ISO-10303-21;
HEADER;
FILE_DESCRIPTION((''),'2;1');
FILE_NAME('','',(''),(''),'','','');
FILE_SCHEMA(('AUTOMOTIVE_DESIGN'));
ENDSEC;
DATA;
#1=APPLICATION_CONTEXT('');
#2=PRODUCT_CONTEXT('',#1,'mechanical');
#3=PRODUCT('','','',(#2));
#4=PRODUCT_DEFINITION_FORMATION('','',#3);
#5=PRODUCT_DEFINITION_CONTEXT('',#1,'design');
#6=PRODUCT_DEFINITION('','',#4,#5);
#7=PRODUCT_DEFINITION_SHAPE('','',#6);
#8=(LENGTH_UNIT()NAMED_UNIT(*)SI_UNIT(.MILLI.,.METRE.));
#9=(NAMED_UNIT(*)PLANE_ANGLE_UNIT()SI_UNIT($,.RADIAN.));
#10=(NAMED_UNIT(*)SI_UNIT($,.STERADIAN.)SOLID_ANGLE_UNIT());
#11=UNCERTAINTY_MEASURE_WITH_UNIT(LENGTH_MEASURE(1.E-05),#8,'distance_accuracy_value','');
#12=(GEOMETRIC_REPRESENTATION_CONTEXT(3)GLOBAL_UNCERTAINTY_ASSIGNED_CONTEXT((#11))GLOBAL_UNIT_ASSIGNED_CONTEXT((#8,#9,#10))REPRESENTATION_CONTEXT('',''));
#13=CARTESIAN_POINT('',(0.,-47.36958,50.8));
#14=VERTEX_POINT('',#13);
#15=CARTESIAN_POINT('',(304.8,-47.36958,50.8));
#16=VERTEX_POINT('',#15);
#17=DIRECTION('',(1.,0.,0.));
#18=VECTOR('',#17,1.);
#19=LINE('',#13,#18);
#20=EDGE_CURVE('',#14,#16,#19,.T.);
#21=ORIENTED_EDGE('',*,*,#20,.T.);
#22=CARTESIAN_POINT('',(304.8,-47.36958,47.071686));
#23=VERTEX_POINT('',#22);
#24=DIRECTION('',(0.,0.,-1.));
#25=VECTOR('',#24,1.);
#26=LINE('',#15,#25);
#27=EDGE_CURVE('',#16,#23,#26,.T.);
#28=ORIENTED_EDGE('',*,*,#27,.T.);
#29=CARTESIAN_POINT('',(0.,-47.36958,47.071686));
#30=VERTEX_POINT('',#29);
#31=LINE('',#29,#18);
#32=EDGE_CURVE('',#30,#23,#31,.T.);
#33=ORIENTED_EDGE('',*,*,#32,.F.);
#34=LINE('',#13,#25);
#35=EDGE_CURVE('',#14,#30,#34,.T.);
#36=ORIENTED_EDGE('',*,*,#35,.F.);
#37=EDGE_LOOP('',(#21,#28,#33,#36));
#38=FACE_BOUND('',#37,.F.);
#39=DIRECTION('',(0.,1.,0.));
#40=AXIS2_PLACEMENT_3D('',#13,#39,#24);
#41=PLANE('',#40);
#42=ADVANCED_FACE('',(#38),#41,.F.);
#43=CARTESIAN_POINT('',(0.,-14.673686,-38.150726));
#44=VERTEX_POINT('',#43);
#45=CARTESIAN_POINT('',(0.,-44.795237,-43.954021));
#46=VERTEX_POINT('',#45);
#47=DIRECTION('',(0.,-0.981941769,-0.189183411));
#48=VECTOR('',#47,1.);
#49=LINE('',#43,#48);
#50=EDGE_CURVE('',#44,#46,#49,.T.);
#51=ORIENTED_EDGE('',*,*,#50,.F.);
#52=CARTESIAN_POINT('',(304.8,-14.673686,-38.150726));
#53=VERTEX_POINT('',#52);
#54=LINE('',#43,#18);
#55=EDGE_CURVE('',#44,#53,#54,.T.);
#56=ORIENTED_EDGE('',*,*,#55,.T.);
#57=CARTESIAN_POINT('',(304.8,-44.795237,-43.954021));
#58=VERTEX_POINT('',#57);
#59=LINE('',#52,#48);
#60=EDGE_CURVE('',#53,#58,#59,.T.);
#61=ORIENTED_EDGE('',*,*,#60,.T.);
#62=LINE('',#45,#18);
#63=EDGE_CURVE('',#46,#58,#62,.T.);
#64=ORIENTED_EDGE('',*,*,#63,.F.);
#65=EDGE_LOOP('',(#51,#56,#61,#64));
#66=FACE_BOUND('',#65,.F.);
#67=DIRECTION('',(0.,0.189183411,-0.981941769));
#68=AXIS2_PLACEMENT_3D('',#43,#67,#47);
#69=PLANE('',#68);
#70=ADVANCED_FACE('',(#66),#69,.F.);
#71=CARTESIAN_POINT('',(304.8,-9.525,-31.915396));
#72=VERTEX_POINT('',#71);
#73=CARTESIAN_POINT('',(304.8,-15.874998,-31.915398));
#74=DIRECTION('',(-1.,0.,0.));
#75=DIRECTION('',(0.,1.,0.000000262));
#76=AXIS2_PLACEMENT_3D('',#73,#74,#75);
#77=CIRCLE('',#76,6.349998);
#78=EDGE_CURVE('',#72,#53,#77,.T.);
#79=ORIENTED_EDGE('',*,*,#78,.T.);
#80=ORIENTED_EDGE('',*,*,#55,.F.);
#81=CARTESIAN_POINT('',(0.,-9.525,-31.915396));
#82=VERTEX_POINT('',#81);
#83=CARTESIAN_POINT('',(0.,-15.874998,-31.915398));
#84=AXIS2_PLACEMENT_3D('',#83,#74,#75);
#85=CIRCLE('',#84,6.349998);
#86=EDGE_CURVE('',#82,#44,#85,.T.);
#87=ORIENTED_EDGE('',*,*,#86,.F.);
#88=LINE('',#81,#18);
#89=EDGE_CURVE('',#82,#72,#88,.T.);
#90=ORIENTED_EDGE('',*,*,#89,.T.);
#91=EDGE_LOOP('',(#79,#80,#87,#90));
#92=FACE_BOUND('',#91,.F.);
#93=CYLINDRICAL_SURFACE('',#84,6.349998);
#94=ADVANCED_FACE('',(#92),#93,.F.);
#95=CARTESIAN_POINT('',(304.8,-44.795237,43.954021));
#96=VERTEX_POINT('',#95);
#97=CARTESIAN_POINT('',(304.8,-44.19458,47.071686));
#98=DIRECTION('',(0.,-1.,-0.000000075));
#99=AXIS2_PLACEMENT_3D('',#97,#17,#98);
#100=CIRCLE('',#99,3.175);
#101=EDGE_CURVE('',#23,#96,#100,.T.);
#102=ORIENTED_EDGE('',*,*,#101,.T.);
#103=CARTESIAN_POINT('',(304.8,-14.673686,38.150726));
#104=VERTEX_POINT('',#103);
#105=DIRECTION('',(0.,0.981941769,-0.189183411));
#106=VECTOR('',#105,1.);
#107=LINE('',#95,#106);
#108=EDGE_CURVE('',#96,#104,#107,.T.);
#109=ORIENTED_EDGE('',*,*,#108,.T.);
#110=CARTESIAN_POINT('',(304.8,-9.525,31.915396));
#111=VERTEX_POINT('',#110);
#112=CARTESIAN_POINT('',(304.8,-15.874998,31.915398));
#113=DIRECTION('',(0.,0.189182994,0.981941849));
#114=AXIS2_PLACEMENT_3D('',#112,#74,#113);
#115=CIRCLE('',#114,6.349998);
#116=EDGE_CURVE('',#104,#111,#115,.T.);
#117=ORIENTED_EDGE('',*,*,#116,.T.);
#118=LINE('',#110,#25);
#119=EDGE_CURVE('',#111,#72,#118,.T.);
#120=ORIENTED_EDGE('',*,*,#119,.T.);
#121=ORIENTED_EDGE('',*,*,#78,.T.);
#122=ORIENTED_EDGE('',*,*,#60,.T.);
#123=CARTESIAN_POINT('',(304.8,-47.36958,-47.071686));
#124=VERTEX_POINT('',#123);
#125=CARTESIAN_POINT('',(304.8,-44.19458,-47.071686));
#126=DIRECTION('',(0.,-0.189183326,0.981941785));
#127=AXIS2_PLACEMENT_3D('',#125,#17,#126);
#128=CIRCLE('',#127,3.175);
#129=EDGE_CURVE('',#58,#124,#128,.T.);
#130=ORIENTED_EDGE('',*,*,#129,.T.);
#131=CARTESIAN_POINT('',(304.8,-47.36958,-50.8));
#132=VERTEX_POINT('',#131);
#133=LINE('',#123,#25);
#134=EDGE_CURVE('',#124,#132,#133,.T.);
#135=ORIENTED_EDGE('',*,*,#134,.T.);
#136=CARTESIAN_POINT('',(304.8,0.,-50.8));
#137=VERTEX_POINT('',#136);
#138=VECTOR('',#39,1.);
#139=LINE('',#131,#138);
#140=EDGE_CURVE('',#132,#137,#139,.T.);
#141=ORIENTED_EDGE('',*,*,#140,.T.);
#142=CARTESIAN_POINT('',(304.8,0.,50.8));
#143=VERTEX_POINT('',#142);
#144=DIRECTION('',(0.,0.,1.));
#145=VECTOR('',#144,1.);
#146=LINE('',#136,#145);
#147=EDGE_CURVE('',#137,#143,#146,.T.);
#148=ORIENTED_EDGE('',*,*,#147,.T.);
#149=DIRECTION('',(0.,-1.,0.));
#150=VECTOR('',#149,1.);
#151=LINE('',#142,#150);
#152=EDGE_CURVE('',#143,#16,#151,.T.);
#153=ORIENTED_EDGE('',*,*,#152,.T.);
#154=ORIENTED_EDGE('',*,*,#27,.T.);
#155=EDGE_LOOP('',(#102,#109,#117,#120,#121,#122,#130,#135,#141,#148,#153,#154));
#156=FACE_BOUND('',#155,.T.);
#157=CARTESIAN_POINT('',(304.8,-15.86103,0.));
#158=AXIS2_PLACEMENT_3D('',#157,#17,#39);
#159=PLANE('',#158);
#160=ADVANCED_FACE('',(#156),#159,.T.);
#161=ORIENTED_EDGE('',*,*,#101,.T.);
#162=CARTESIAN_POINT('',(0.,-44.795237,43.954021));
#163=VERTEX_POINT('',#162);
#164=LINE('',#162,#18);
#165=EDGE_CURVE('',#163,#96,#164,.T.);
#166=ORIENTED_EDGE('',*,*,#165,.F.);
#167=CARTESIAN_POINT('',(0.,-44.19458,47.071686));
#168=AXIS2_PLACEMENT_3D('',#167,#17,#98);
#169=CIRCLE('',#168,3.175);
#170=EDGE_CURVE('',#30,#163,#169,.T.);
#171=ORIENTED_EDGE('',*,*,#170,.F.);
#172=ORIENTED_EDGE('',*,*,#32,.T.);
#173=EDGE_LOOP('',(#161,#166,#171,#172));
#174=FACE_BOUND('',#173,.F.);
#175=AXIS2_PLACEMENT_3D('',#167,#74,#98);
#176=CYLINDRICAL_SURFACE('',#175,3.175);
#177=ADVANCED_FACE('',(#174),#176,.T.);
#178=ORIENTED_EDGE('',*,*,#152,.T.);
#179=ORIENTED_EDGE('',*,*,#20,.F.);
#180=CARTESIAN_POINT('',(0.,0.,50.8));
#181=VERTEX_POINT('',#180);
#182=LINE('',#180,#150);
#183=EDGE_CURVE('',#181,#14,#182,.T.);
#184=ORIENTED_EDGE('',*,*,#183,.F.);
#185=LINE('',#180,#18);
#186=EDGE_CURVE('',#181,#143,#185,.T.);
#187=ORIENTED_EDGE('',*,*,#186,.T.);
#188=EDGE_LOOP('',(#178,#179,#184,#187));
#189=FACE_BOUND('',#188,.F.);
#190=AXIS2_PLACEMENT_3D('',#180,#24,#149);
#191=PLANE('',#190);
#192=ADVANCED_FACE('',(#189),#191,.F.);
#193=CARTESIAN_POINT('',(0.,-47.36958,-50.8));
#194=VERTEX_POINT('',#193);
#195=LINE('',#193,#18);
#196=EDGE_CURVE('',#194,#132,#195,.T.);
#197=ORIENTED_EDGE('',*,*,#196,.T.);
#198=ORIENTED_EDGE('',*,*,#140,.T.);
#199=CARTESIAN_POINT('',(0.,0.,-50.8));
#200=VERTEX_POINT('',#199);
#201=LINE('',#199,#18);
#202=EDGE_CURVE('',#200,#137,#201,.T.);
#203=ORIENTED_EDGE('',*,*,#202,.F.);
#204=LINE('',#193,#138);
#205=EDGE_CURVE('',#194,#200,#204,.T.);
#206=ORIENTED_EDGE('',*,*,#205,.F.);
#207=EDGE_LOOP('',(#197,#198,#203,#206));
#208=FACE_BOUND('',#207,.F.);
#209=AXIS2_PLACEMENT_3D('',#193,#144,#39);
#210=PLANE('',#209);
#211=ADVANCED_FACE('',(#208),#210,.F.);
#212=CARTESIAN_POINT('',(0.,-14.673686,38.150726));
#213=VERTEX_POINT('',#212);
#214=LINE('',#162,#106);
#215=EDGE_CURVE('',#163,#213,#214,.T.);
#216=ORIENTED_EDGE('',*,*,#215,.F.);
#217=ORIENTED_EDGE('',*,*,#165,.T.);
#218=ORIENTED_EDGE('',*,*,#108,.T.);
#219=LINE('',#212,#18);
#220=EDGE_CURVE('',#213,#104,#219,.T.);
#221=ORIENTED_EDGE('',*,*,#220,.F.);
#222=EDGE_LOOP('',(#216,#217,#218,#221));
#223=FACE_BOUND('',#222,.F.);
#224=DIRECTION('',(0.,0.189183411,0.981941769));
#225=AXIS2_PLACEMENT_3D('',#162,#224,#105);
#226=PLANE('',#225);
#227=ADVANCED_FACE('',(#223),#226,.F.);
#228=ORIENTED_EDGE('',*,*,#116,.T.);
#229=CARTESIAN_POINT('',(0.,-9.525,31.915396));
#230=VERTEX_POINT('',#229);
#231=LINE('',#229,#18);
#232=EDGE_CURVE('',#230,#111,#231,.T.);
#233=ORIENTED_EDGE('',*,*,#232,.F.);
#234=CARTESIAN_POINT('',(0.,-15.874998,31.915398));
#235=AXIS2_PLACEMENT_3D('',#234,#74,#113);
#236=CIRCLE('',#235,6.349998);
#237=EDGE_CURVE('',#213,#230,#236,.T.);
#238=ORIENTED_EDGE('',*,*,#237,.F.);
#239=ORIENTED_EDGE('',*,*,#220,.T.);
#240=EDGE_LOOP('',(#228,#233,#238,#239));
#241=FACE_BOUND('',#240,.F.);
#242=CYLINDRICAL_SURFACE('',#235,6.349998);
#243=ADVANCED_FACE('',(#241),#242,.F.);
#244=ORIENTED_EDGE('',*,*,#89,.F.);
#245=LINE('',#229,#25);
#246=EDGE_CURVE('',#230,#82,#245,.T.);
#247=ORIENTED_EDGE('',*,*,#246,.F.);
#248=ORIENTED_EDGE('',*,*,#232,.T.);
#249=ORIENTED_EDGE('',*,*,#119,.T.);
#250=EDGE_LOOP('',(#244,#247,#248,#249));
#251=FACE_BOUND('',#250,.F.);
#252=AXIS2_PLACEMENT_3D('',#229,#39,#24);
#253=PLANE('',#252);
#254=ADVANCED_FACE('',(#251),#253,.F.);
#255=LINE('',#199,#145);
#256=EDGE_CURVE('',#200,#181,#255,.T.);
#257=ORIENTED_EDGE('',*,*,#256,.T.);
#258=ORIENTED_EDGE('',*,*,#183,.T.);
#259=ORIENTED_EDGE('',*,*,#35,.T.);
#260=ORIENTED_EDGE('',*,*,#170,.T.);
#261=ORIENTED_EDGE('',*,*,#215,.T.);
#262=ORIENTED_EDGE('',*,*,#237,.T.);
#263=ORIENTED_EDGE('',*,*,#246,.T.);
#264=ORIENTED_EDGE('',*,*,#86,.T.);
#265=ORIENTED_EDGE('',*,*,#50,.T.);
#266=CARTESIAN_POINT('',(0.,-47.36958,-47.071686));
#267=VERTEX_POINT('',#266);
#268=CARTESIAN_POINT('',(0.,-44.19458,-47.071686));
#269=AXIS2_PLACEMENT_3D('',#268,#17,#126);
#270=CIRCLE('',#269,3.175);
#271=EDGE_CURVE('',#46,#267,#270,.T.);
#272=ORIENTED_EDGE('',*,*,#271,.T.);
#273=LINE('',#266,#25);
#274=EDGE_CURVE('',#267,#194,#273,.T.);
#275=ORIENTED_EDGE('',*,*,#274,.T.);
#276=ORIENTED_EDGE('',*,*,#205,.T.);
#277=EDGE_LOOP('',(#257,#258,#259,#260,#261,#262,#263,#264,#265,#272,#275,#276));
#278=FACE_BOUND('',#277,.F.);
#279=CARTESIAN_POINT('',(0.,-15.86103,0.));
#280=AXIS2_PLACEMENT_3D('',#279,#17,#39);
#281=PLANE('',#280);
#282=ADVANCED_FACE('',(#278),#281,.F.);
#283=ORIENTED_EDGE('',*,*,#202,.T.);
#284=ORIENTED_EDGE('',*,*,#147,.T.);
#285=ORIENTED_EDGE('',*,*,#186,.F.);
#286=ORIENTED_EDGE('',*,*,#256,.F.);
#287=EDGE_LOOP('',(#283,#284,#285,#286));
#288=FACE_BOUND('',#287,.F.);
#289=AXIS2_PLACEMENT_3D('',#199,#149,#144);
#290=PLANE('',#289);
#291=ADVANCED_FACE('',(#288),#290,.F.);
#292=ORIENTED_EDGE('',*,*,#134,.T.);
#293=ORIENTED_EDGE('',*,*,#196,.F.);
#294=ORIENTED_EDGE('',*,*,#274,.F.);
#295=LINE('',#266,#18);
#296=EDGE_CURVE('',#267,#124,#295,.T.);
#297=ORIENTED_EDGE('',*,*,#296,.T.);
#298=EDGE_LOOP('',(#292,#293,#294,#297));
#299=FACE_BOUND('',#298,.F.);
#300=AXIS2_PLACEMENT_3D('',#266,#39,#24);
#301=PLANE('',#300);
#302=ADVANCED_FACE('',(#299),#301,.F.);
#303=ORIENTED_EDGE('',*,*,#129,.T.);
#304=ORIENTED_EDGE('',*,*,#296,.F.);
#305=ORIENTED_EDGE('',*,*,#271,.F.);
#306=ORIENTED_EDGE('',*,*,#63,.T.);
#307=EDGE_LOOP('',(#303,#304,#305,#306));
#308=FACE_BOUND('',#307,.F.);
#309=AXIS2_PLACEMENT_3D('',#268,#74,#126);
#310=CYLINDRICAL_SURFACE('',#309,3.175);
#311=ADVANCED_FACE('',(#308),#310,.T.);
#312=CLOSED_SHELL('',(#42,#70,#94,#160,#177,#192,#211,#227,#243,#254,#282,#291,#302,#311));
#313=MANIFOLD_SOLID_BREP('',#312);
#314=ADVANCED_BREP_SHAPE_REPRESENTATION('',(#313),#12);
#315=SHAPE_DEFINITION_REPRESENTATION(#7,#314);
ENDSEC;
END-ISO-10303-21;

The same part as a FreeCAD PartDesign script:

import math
import FreeCAD as App
import Part
import Sketcher
Q = App.Units.Quantity

doc = App.newDocument("Part")
params = doc.addObject("Spreadsheet::Sheet", "Params")
for row, (alias, value) in enumerate([
    ("sketch1_height", "4 in"),
    ("sketch1_radius", "0.2499999 in"),
    ("sketch1_radius2", "0.125 in"),
    ("pad1_length", "12 in"),
], start=1):
    params.set(f"A{row}", alias)
    params.set(f"B{row}", "=" + value)
    params.setAlias(f"B{row}", alias)

body = doc.addObject("PartDesign::Body", "Body")

# Sketch on YZ plane
sketch1 = body.newObject("Sketcher::SketchObject", "Sketch")
sketch1.AttachmentSupport = (doc.getObject("YZ_Plane"), [""])
sketch1.MapMode = "FlatFace"
sketch1.addGeometry(Part.LineSegment(App.Vector(0, 50.8, 0), App.Vector(-47.36958, 50.8, 0)), False)
sketch1.addGeometry(Part.LineSegment(App.Vector(-47.36958, 50.8, 0), App.Vector(-47.36958, 47.071686, 0)), False)
sketch1.addGeometry(Part.ArcOfCircle(Part.Circle(App.Vector(-44.19458, 47.071686, 0), App.Vector(0, 0, 1), 3.175), math.radians(-179.999996), math.radians(-100.905128)), False)
sketch1.addGeometry(Part.LineSegment(App.Vector(-44.795237, 43.954021, 0), App.Vector(-14.673686, 38.150726, 0)), False)
sketch1.addGeometry(Part.ArcOfCircle(Part.Circle(App.Vector(-15.874998, 31.915398, 0), App.Vector(0, 0, 1), 6.349998), math.radians(-0.000015), math.radians(79.094891)), False)
sketch1.addGeometry(Part.LineSegment(App.Vector(-9.525, 31.915396, 0), App.Vector(-9.525, -31.915396, 0)), False)
sketch1.addGeometry(Part.ArcOfCircle(Part.Circle(App.Vector(-15.874998, -31.915398, 0), App.Vector(0, 0, 1), 6.349998), math.radians(-79.094891), math.radians(0.000015)), False)
sketch1.addGeometry(Part.LineSegment(App.Vector(-14.673686, -38.150726, 0), App.Vector(-44.795237, -43.954021, 0)), False)
sketch1.addGeometry(Part.ArcOfCircle(Part.Circle(App.Vector(-44.19458, -47.071686, 0), App.Vector(0, 0, 1), 3.175), math.radians(100.905128), math.radians(179.999996)), False)
sketch1.addGeometry(Part.LineSegment(App.Vector(-47.36958, -47.071686, 0), App.Vector(-47.36958, -50.8, 0)), False)
sketch1.addGeometry(Part.LineSegment(App.Vector(-47.36958, -50.8, 0), App.Vector(0, -50.8, 0)), False)
sketch1.addGeometry(Part.LineSegment(App.Vector(0, -50.8, 0), App.Vector(0, 50.8, 0)), False)
sketch1.addConstraint(Sketcher.Constraint("Coincident", 0, 2, 1, 1))
sketch1.addConstraint(Sketcher.Constraint("Tangent", 1, 2, 2, 1))
sketch1.addConstraint(Sketcher.Constraint("Tangent", 2, 2, 3, 1))
sketch1.addConstraint(Sketcher.Constraint("Tangent", 3, 2, 4, 2))
sketch1.addConstraint(Sketcher.Constraint("Tangent", 4, 1, 5, 1))
sketch1.addConstraint(Sketcher.Constraint("Tangent", 5, 2, 6, 2))
sketch1.addConstraint(Sketcher.Constraint("Tangent", 6, 1, 7, 1))
sketch1.addConstraint(Sketcher.Constraint("Tangent", 7, 2, 8, 1))
sketch1.addConstraint(Sketcher.Constraint("Tangent", 8, 2, 9, 1))
sketch1.addConstraint(Sketcher.Constraint("Coincident", 9, 2, 10, 1))
sketch1.addConstraint(Sketcher.Constraint("Coincident", 10, 2, 11, 1))
sketch1.addConstraint(Sketcher.Constraint("Coincident", 11, 2, 0, 1))
sketch1.addConstraint(Sketcher.Constraint("Horizontal", 0))
sketch1.addConstraint(Sketcher.Constraint("Vertical", 1))
sketch1.addConstraint(Sketcher.Constraint("Vertical", 5))
sketch1.addConstraint(Sketcher.Constraint("Vertical", 9))
sketch1.addConstraint(Sketcher.Constraint("Horizontal", 10))
sketch1.addConstraint(Sketcher.Constraint("Vertical", 11))
sketch1.addConstraint(Sketcher.Constraint("Equal", 4, 6))
sketch1.addConstraint(Sketcher.Constraint("Equal", 2, 8))
sketch1.addConstraint(Sketcher.Constraint("Symmetric", 10, 2, 11, 2, -1, 1))
sketch1.addConstraint(Sketcher.Constraint("Symmetric", 2, 3, 8, 3, -1))
sketch1.addConstraint(Sketcher.Constraint("Vertical", 3, 2, 6, 1))
sketch1.addConstraint(Sketcher.Constraint("DistanceY", 11, 1, 11, 2, Q("4 in")))
sketch1.addConstraint(Sketcher.Constraint("Radius", 4, Q("0.2499999 in")))
sketch1.addConstraint(Sketcher.Constraint("Radius", 2, Q("0.125 in")))
sketch1.addConstraint(Sketcher.Constraint("DistanceX", 4, 3, -1, 1, Q("0.6249999 in")))
sketch1.addConstraint(Sketcher.Constraint("DistanceX", 0, 2, 0, 1, Q("47.36958 mm")))
sketch1.addConstraint(Sketcher.Constraint("DistanceY", 1, 2, 1, 1, Q("3.728314 mm")))
sketch1.addConstraint(Sketcher.Constraint("DistanceY", 5, 2, 5, 1, Q("63.830792 mm")))
sketch1.setExpression("Constraints[23]", "Params.sketch1_height")
sketch1.setExpression("Constraints[24]", "Params.sketch1_radius")
sketch1.setExpression("Constraints[25]", "Params.sketch1_radius2")
pad1 = body.newObject("PartDesign::Pad", "Pad")
pad1.Profile = sketch1
pad1.setExpression("Length", "Params.pad1_length")

doc.recompute()
